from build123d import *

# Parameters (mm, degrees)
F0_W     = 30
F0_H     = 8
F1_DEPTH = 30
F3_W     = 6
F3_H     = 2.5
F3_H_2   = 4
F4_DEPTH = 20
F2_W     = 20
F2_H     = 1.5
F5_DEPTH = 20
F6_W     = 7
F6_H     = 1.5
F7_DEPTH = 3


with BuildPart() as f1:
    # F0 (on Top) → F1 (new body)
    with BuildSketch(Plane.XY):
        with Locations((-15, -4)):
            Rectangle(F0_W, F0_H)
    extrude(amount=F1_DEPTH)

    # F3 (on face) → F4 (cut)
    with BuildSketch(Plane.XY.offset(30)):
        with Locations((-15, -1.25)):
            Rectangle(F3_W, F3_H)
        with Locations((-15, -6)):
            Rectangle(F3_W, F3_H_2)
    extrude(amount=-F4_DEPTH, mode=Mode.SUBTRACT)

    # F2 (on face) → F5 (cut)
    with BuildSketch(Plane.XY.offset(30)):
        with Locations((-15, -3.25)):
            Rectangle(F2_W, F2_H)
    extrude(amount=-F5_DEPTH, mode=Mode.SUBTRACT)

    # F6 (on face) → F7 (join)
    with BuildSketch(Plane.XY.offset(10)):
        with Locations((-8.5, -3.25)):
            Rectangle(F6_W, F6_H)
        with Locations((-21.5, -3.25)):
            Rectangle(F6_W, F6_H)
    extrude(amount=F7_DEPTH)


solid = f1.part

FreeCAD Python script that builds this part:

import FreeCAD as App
import Part
import Sketcher

V = App.Vector


def add_polygon(sketch, points):
    """Adds a closed chain of lines whose ends are joined by coincident constraints."""
    first, n = sketch.GeometryCount, len(points)
    for a, b in zip(points, points[1:] + points[:1]):
        sketch.addGeometry(Part.LineSegment(App.Vector(*a, 0), App.Vector(*b, 0)), False)
    for i in range(n):
        sketch.addConstraint(Sketcher.Constraint("Coincident", first + i, 2, first + (i + 1) % n, 1))

doc = App.newDocument("Part")
params = doc.addObject("Spreadsheet::Sheet", "Params")
for row, (alias, value) in enumerate([
    ("sketch1_width", "30 mm"),
    ("sketch1_height", "8 mm"),
    ("pad1_length", "30 mm"),
    ("sketch2_width", "6 mm"),
    ("sketch2_height", "4 mm"),
    ("sketch2_height2", "2.5 mm"),
    ("pocket1_length", "20 mm"),
    ("sketch3_width", "20 mm"),
    ("sketch3_height", "1.5 mm"),
    ("pocket2_length", "20 mm"),
    ("sketch4_width", "7 mm"),
    ("sketch4_height", "1.5 mm"),
    ("pad2_length", "3 mm"),
], start=1):
    params.set(f"A{row}", alias)
    params.set(f"B{row}", "=" + value)
    params.setAlias(f"B{row}", alias)

body = doc.addObject("PartDesign::Body", "Body")

sketch1 = body.newObject("Sketcher::SketchObject", "Sketch")
sketch1.AttachmentSupport = (doc.getObject("XY_Plane"), [""])
sketch1.MapMode = "FlatFace"
add_polygon(sketch1, [(-30, 0), (-30, -8), (0, -8), (0, 0)])
sketch1.addConstraint([
    Sketcher.Constraint("Vertical", 0),
    Sketcher.Constraint("Horizontal", 1),
    Sketcher.Constraint("Vertical", 2),
    Sketcher.Constraint("Horizontal", 3),
    Sketcher.Constraint("Coincident", 2, 2, -1, 1),
    Sketcher.Constraint("DistanceX", 1, 1, 1, 2, 30.0),
    Sketcher.Constraint("DistanceY", 0, 2, 0, 1, 8.0),
])
sketch1.setExpression("Constraints[9]", "Params.sketch1_width")
sketch1.setExpression("Constraints[10]", "Params.sketch1_height")
pad1 = body.newObject("PartDesign::Pad", "Pad")
pad1.Profile = sketch1
pad1.setExpression("Length", "Params.pad1_length")

sketch2 = body.newObject("Sketcher::SketchObject", "Sketch001")
sketch2.AttachmentSupport = (doc.getObject("XY_Plane"), [""])
sketch2.MapMode = "FlatFace"
sketch2.AttachmentOffset = App.Placement(V(0, 0, 30), App.Rotation())
add_polygon(sketch2, [(-18, 0), (-18, -2.5), (-12, -2.5), (-12, 0)])
add_polygon(sketch2, [(-18, -4), (-18, -8), (-12, -8), (-12, -4)])
sketch2.addConstraint([
    Sketcher.Constraint("Vertical", 0),
    Sketcher.Constraint("Horizontal", 1),
    Sketcher.Constraint("Vertical", 2),
    Sketcher.Constraint("Horizontal", 3),
    Sketcher.Constraint("Vertical", 4),
    Sketcher.Constraint("Horizontal", 5),
    Sketcher.Constraint("Vertical", 6),
    Sketcher.Constraint("Horizontal", 7),
    Sketcher.Constraint("PointOnObject", 2, 2, -1),
    Sketcher.Constraint("Vertical", 3, 2, 4, 2),
    Sketcher.Constraint("Vertical", 2, 2, 5, 2),
    Sketcher.Constraint("DistanceX", 1, 1, 1, 2, 6.0),
    Sketcher.Constraint("DistanceY", 4, 2, 4, 1, 4.0),
    Sketcher.Constraint("DistanceY", 0, 2, 0, 1, 2.5),
    Sketcher.Constraint("DistanceX", 0, 2, -1, 1, 18.0),
    Sketcher.Constraint("DistanceY", 4, 2, -1, 1, 8.0),
])
sketch2.setExpression("Constraints[19]", "Params.sketch2_width")
sketch2.setExpression("Constraints[20]", "Params.sketch2_height")
sketch2.setExpression("Constraints[21]", "Params.sketch2_height2")
pocket1 = body.newObject("PartDesign::Pocket", "Pocket")
pocket1.Profile = sketch2
pocket1.setExpression("Length", "Params.pocket1_length")

sketch3 = body.newObject("Sketcher::SketchObject", "Sketch002")
sketch3.AttachmentSupport = (doc.getObject("XY_Plane"), [""])
sketch3.MapMode = "FlatFace"
sketch3.AttachmentOffset = App.Placement(V(0, 0, 30), App.Rotation())
add_polygon(sketch3, [(-25, -2.5), (-25, -4), (-5, -4), (-5, -2.5)])
sketch3.addConstraint([
    Sketcher.Constraint("Vertical", 0),
    Sketcher.Constraint("Horizontal", 1),
    Sketcher.Constraint("Vertical", 2),
    Sketcher.Constraint("Horizontal", 3),
    Sketcher.Constraint("DistanceX", 1, 1, 1, 2, 20.0),
    Sketcher.Constraint("DistanceY", 0, 2, 0, 1, 1.5),
    Sketcher.Constraint("DistanceX", 0, 2, -1, 1, 25.0),
    Sketcher.Constraint("DistanceY", 0, 2, -1, 1, 4.0),
])
sketch3.setExpression("Constraints[8]", "Params.sketch3_width")
sketch3.setExpression("Constraints[9]", "Params.sketch3_height")
pocket2 = body.newObject("PartDesign::Pocket", "Pocket001")
pocket2.Profile = sketch3
pocket2.setExpression("Length", "Params.pocket2_length")

sketch4 = body.newObject("Sketcher::SketchObject", "Sketch003")
sketch4.AttachmentSupport = (doc.getObject("XY_Plane"), [""])
sketch4.MapMode = "FlatFace"
sketch4.AttachmentOffset = App.Placement(V(0, 0, 10), App.Rotation())
add_polygon(sketch4, [(-12, -2.5), (-12, -4), (-5, -4), (-5, -2.5)])
add_polygon(sketch4, [(-25, -2.5), (-25, -4), (-18, -4), (-18, -2.5)])
sketch4.addConstraint([
    Sketcher.Constraint("Vertical", 0),
    Sketcher.Constraint("Horizontal", 1),
    Sketcher.Constraint("Vertical", 2),
    Sketcher.Constraint("Horizontal", 3),
    Sketcher.Constraint("Vertical", 4),
    Sketcher.Constraint("Horizontal", 5),
    Sketcher.Constraint("Vertical", 6),
    Sketcher.Constraint("Horizontal", 7),
    Sketcher.Constraint("Horizontal", 1, 2, 4, 2),
    Sketcher.Constraint("Horizontal", 3, 2, 6, 2),
    Sketcher.Constraint("Equal", 3, 5),
    Sketcher.Constraint("DistanceX", 1, 1, 1, 2, 7.0),
    Sketcher.Constraint("DistanceY", 0, 2, 0, 1, 1.5),
    Sketcher.Constraint("DistanceX", 0, 2, -1, 1, 12.0),
    Sketcher.Constraint("DistanceY", 0, 2, -1, 1, 4.0),
    Sketcher.Constraint("DistanceX", 4, 2, -1, 1, 25.0),
])
sketch4.setExpression("Constraints[19]", "Params.sketch4_width")
sketch4.setExpression("Constraints[20]", "Params.sketch4_height")
pad2 = body.newObject("PartDesign::Pad", "Pad001")
pad2.Profile = sketch4
pad2.setExpression("Length", "Params.pad2_length")

doc.recompute()
